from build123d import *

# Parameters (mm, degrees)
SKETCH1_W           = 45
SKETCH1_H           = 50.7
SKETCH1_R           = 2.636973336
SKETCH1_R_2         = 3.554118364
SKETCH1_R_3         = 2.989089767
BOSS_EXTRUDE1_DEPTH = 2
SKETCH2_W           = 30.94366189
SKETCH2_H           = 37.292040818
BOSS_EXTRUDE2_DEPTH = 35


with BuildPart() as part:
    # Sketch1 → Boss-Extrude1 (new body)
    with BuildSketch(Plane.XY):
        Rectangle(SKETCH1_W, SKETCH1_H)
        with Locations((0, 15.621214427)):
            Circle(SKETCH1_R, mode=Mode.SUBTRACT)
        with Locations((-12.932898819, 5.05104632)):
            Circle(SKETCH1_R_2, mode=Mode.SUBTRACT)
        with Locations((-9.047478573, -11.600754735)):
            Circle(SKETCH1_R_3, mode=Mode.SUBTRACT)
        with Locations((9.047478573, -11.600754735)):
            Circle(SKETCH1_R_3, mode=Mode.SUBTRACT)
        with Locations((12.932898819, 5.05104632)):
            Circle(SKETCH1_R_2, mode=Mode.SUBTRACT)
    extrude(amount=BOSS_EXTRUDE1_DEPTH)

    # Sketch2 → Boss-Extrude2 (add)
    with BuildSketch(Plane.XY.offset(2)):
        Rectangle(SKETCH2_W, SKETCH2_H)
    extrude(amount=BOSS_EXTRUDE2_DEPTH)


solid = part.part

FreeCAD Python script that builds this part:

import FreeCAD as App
import Part
import Sketcher
from FreeCAD import Vector

doc = App.newDocument("Part")
body = doc.addObject("PartDesign::Body", "Body")

sketch1 = body.newObject("Sketcher::SketchObject", "Sketch")
sketch1.AttachmentSupport = (doc.getObject("XY_Plane"), [""])
sketch1.MapMode = "FlatFace"
sketch1.addGeometry(Part.LineSegment(Vector(-22.5, 25.4, 0), Vector(-22.5, -25.4, 0)), False)
sketch1.addGeometry(Part.LineSegment(Vector(-22.5, -25.4, 0), Vector(22.5, -25.4, 0)), False)
sketch1.addGeometry(Part.LineSegment(Vector(22.5, -25.4, 0), Vector(22.5, 25.4, 0)), False)
sketch1.addGeometry(Part.LineSegment(Vector(22.5, 25.4, 0), Vector(-22.5, 25.4, 0)), False)
sketch1.addGeometry(Part.Circle(Vector(-9, -11.6, 0), Vector(0, 0, 1), 3), False)
sketch1.addGeometry(Part.Circle(Vector(9, -11.6, 0), Vector(0, 0, 1), 3), False)
sketch1.addGeometry(Part.Circle(Vector(-12.9, 5.1, 0), Vector(0, 0, 1), 3.6), False)
sketch1.addGeometry(Part.Circle(Vector(12.9, 5.1, 0), Vector(0, 0, 1), 3.6), False)
sketch1.addGeometry(Part.Circle(Vector(0, 15.6, 0), Vector(0, 0, 1), 2.6), False)
sketch1.addConstraint(Sketcher.Constraint("Coincident", 0, 2, 1, 1))
sketch1.addConstraint(Sketcher.Constraint("Coincident", 1, 2, 2, 1))
sketch1.addConstraint(Sketcher.Constraint("Coincident", 2, 2, 3, 1))
sketch1.addConstraint(Sketcher.Constraint("Coincident", 3, 2, 0, 1))
sketch1.addConstraint(Sketcher.Constraint("Vertical", 0))
sketch1.addConstraint(Sketcher.Constraint("Horizontal", 1))
sketch1.addConstraint(Sketcher.Constraint("Vertical", 2))
sketch1.addConstraint(Sketcher.Constraint("Horizontal", 3))
sketch1.addConstraint(Sketcher.Constraint("Equal", 4, 5))
sketch1.addConstraint(Sketcher.Constraint("Equal", 6, 7))
sketch1.addConstraint(Sketcher.Constraint("Symmetric", 0, 2, 2, 2, -1, 1))
sketch1.addConstraint(Sketcher.Constraint("Symmetric", 4, 3, 5, 3, -2))
sketch1.addConstraint(Sketcher.Constraint("Symmetric", 6, 3, 7, 3, -2))
sketch1.addConstraint(Sketcher.Constraint("PointOnObject", 8, 3, -2))
sketch1.addConstraint(Sketcher.Constraint("DistanceX", 1, 1, 1, 2, 45.0))
sketch1.addConstraint(Sketcher.Constraint("DistanceY", 0, 2, 0, 1, 50.7))
sketch1.addConstraint(Sketcher.Constraint("Diameter", 4, 5.97818))
sketch1.addConstraint(Sketcher.Constraint("Diameter", 6, 7.108237))
sketch1.addConstraint(Sketcher.Constraint("Diameter", 8, 5.273947))
sketch1.addConstraint(Sketcher.Constraint("DistanceX", 6, 3, -1, 1, 12.932899))
sketch1.addConstraint(Sketcher.Constraint("DistanceY", 4, 3, 6, 3, 16.651801))
sketch1.addConstraint(Sketcher.Constraint("DistanceX", 4, 3, -1, 1, 9.047479))
sketch1.addConstraint(Sketcher.Constraint("DistanceY", 6, 3, 8, 3, 10.570168))
sketch1.addConstraint(Sketcher.Constraint("DistanceY", 4, 3, -1, 1, 11.600755))
pad1 = body.newObject("PartDesign::Pad", "Pad")
pad1.Profile = sketch1
pad1.Length = 2

sketch2 = body.newObject("Sketcher::SketchObject", "Sketch001")
sketch2.AttachmentSupport = (doc.getObject("XY_Plane"), [""])
sketch2.MapMode = "FlatFace"
sketch2.AttachmentOffset = App.Placement(Vector(0, 0, 2), App.Rotation())
sketch2.addGeometry(Part.LineSegment(Vector(-15, 19, 0), Vector(-15, -19, 0)), False)
sketch2.addGeometry(Part.LineSegment(Vector(-15, -19, 0), Vector(15, -19, 0)), False)
sketch2.addGeometry(Part.LineSegment(Vector(15, -19, 0), Vector(15, 19, 0)), False)
sketch2.addGeometry(Part.LineSegment(Vector(15, 19, 0), Vector(-15, 19, 0)), False)
sketch2.addConstraint(Sketcher.Constraint("Coincident", 0, 2, 1, 1))
sketch2.addConstraint(Sketcher.Constraint("Coincident", 1, 2, 2, 1))
sketch2.addConstraint(Sketcher.Constraint("Coincident", 2, 2, 3, 1))
sketch2.addConstraint(Sketcher.Constraint("Coincident", 3, 2, 0, 1))
sketch2.addConstraint(Sketcher.Constraint("Vertical", 0))
sketch2.addConstraint(Sketcher.Constraint("Horizontal", 1))
sketch2.addConstraint(Sketcher.Constraint("Vertical", 2))
sketch2.addConstraint(Sketcher.Constraint("Horizontal", 3))
sketch2.addConstraint(Sketcher.Constraint("Symmetric", 0, 2, 2, 2, -1, 1))
sketch2.addConstraint(Sketcher.Constraint("DistanceX", 1, 1, 1, 2, 30.943662))
sketch2.addConstraint(Sketcher.Constraint("DistanceY", 0, 2, 0, 1, 37.292041))
pad2 = body.newObject("PartDesign::Pad", "Pad001")
pad2.Profile = sketch2
pad2.Length = 35

doc.recompute()
